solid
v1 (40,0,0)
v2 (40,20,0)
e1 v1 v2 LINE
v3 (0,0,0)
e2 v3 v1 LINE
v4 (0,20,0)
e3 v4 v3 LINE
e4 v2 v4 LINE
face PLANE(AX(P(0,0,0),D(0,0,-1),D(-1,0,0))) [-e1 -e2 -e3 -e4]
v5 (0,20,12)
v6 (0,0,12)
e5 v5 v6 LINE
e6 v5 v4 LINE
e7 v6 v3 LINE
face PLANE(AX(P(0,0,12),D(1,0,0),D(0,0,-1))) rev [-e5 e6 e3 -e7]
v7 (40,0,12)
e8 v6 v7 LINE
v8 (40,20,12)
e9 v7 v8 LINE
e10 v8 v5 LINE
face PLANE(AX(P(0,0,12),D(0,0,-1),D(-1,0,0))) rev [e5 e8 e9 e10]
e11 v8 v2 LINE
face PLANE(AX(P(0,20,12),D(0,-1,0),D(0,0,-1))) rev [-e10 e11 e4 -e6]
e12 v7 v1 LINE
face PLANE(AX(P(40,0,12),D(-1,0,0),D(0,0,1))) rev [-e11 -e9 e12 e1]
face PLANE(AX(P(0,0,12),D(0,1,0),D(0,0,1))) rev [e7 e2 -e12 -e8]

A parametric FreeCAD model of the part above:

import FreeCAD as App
import Part
import Sketcher
from FreeCAD import Vector
Q = App.Units.Quantity


def add_polygon(sketch, points):
    """Adds a closed chain of lines whose ends are joined by coincident constraints."""
    first, n = sketch.GeometryCount, len(points)
    for a, b in zip(points, points[1:] + points[:1]):
        sketch.addGeometry(Part.LineSegment(App.Vector(*a, 0), App.Vector(*b, 0)), False)
    for i in range(n):
        sketch.addConstraint(Sketcher.Constraint("Coincident", first + i, 2, first + (i + 1) % n, 1))

doc = App.newDocument("Part")
body = doc.addObject("PartDesign::Body", "Body")

# Sketch on XY plane
sketch1 = body.newObject("Sketcher::SketchObject", "Sketch")
sketch1.AttachmentSupport = (doc.getObject("XY_Plane"), [""])
sketch1.MapMode = "FlatFace"
add_polygon(sketch1, [(0, 20), (0, 0), (40, 0), (40, 20)])  # lines 0-3
sketch1.addConstraint(Sketcher.Constraint("Vertical", 0))
sketch1.addConstraint(Sketcher.Constraint("Horizontal", 1))
sketch1.addConstraint(Sketcher.Constraint("Vertical", 2))
sketch1.addConstraint(Sketcher.Constraint("Horizontal", 3))
sketch1.addConstraint(Sketcher.Constraint("Coincident", 0, 2, -1, 1))
sketch1.addConstraint(Sketcher.Constraint("DistanceX", 1, 1, 1, 2, Q("40 mm")))
sketch1.addConstraint(Sketcher.Constraint("DistanceY", 0, 2, 0, 1, Q("20 mm")))
pad1 = body.newObject("PartDesign::Pad", "Pad")
pad1.Profile = sketch1
pad1.Length = 12

doc.recompute()
